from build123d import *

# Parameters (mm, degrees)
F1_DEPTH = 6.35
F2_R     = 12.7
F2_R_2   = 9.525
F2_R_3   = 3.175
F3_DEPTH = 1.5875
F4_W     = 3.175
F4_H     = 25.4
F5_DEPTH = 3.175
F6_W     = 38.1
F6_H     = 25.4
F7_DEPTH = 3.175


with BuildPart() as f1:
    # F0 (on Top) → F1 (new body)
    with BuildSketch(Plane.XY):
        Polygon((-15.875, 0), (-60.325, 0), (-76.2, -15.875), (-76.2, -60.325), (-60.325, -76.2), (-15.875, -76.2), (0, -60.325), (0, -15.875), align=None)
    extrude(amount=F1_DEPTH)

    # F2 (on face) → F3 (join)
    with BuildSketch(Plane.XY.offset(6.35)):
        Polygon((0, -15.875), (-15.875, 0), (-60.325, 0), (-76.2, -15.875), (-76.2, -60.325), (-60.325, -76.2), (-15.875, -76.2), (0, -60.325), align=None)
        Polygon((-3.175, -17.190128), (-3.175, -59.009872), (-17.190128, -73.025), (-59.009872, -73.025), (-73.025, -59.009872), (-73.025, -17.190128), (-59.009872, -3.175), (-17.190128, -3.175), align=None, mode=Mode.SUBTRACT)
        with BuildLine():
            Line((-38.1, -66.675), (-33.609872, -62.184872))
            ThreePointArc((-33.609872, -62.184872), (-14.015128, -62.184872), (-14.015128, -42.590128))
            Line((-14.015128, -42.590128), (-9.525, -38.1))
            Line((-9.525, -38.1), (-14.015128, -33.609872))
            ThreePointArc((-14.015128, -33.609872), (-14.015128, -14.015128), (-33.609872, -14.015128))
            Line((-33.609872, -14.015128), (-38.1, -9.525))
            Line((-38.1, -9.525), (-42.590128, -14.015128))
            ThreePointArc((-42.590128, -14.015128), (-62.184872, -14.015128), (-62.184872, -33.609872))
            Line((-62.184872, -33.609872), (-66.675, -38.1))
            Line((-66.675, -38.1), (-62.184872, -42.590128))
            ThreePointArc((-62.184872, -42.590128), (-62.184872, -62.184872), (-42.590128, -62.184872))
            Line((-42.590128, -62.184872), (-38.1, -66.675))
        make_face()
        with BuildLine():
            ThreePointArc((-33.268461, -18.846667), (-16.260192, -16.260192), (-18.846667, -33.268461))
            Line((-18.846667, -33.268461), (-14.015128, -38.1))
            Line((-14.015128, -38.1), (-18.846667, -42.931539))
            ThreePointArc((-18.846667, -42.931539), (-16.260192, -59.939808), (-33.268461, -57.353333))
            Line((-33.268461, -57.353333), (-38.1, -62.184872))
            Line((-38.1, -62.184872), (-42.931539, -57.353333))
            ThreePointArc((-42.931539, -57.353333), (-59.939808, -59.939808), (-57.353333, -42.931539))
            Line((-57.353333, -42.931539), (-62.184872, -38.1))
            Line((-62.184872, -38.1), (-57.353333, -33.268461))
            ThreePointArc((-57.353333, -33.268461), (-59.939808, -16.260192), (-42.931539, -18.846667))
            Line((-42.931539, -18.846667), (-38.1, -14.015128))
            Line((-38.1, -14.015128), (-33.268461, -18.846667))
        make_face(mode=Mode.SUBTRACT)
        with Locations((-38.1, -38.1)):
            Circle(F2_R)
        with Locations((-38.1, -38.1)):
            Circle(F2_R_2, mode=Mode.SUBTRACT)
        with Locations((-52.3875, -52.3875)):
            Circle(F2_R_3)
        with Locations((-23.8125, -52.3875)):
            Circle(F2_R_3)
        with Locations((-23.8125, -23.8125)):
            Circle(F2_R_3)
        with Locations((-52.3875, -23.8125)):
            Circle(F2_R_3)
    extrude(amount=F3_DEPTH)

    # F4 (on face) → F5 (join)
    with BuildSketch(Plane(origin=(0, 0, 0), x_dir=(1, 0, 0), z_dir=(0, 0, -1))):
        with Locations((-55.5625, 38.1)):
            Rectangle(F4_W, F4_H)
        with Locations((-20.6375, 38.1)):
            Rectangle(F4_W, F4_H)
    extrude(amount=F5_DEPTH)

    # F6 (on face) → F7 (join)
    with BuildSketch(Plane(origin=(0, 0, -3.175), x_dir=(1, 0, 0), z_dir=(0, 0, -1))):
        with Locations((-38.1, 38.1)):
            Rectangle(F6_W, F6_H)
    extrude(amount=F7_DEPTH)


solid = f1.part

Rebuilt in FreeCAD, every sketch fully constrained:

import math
import FreeCAD as App
import Part
import Sketcher
Q = App.Units.Quantity

doc = App.newDocument("Part")
body = doc.addObject("PartDesign::Body", "Body")

sketch1 = body.newObject("Sketcher::SketchObject", "Sketch")
sketch1.AttachmentSupport = (doc.getObject("XY_Plane"), [""])
sketch1.MapMode = "FlatFace"
sketch1.addGeometry([
    Part.LineSegment(App.Vector(-16, 0, 0), App.Vector(-60, 0, 0)),
    Part.LineSegment(App.Vector(-60, 0, 0), App.Vector(-76, -16, 0)),
    Part.LineSegment(App.Vector(-76, -16, 0), App.Vector(-76, -60, 0)),
    Part.LineSegment(App.Vector(-76, -60, 0), App.Vector(-60, -76, 0)),
    Part.LineSegment(App.Vector(-60, -76, 0), App.Vector(-16, -76, 0)),
    Part.LineSegment(App.Vector(-16, -76, 0), App.Vector(0, -60, 0)),
    Part.LineSegment(App.Vector(0, -60, 0), App.Vector(0, -16, 0)),
    Part.LineSegment(App.Vector(0, -16, 0), App.Vector(-16, 0, 0)),
], False)
sketch1.addConstraint([
    Sketcher.Constraint("Coincident", 0, 2, 1, 1),
    Sketcher.Constraint("Coincident", 1, 2, 2, 1),
    Sketcher.Constraint("Coincident", 2, 2, 3, 1),
    Sketcher.Constraint("Coincident", 3, 2, 4, 1),
    Sketcher.Constraint("Coincident", 4, 2, 5, 1),
    Sketcher.Constraint("Coincident", 5, 2, 6, 1),
    Sketcher.Constraint("Coincident", 6, 2, 7, 1),
    Sketcher.Constraint("Coincident", 7, 2, 0, 1),
    Sketcher.Constraint("Horizontal", 0),
    Sketcher.Constraint("Vertical", 2),
    Sketcher.Constraint("Horizontal", 4),
    Sketcher.Constraint("Vertical", 6),
    Sketcher.Constraint("PointOnObject", 0, 2, -1),
    Sketcher.Constraint("PointOnObject", 5, 2, -2),
    Sketcher.Constraint("Perpendicular", 1, 3),
    Sketcher.Constraint("Perpendicular", 3, 5),
    Sketcher.Constraint("Perpendicular", 5, 7),
    Sketcher.Constraint("Horizontal", 2, 2, 5, 2),
    Sketcher.Constraint("Horizontal", 1, 2, 6, 2),
    Sketcher.Constraint("Vertical", 0, 2, 3, 2),
    Sketcher.Constraint("Vertical", 4, 2, 7, 2),
    Sketcher.Constraint("Equal", 4, 2),
    Sketcher.Constraint("DistanceX", 1, 2, -1, 1, Q("3 in")),
    Sketcher.Constraint("DistanceX", 0, 2, 0, 1, Q("1.75 in")),
])
pad1 = body.newObject("PartDesign::Pad", "Pad")
pad1.Profile = sketch1
pad1.Length = Q("0.25 in")

sketch2 = body.newObject("Sketcher::SketchObject", "Sketch001")
sketch2.AttachmentSupport = (doc.getObject("XY_Plane"), [""])
sketch2.MapMode = "FlatFace"
sketch2.AttachmentOffset = App.Placement(App.Vector(0, 0, 0.25 * 25.4), App.Rotation())
sketch2.addGeometry([
    Part.LineSegment(App.Vector(0, -15.9, 0), App.Vector(-15.9, 0, 0)),
    Part.LineSegment(App.Vector(-15.9, 0, 0), App.Vector(-60.3, 0, 0)),
    Part.LineSegment(App.Vector(-60.3, 0, 0), App.Vector(-76.2, -15.9, 0)),
    Part.LineSegment(App.Vector(-76.2, -15.9, 0), App.Vector(-76.2, -60.3, 0)),
    Part.LineSegment(App.Vector(-76.2, -60.3, 0), App.Vector(-60.3, -76.2, 0)),
    Part.LineSegment(App.Vector(-60.3, -76.2, 0), App.Vector(-15.9, -76.2, 0)),
    Part.LineSegment(App.Vector(-15.9, -76.2, 0), App.Vector(0, -60.3, 0)),
    Part.LineSegment(App.Vector(0, -60.3, 0), App.Vector(0, -15.9, 0)),
    Part.LineSegment(App.Vector(-17.2, -3.2, 0), App.Vector(-3.2, -17.2, 0)),
    Part.LineSegment(App.Vector(-3.2, -17.2, 0), App.Vector(-3.2, -59, 0)),
    Part.LineSegment(App.Vector(-3.2, -59, 0), App.Vector(-17.2, -73, 0)),
    Part.LineSegment(App.Vector(-17.2, -73, 0), App.Vector(-59, -73, 0)),
    Part.LineSegment(App.Vector(-59, -73, 0), App.Vector(-73, -59, 0)),
    Part.LineSegment(App.Vector(-73, -59, 0), App.Vector(-73, -17.2, 0)),
    Part.LineSegment(App.Vector(-73, -17.2, 0), App.Vector(-59, -3.2, 0)),
    Part.LineSegment(App.Vector(-59, -3.2, 0), App.Vector(-17.2, -3.2, 0)),
    Part.LineSegment(App.Vector(-38.1, -66.7, 0), App.Vector(-33.6, -62.2, 0)),
    Part.ArcOfCircle(Part.Circle(App.Vector(-23.8, -52.4, 0), App.Vector(0, 0, 1), 13.9), math.radians(-135), math.radians(45)),
    Part.LineSegment(App.Vector(-14, -42.6, 0), App.Vector(-9.5, -38.1, 0)),
    Part.LineSegment(App.Vector(-9.5, -38.1, 0), App.Vector(-14, -33.6, 0)),
    Part.ArcOfCircle(Part.Circle(App.Vector(-23.8, -23.8, 0), App.Vector(0, 0, 1), 13.9), math.radians(-45), math.radians(135)),
    Part.LineSegment(App.Vector(-33.6, -14, 0), App.Vector(-38.1, -9.5, 0)),
    Part.LineSegment(App.Vector(-38.1, -9.5, 0), App.Vector(-42.6, -14, 0)),
    Part.ArcOfCircle(Part.Circle(App.Vector(-52.4, -23.8, 0), App.Vector(0, 0, 1), 13.9), math.radians(45), math.radians(225)),
    Part.LineSegment(App.Vector(-62.2, -33.6, 0), App.Vector(-66.7, -38.1, 0)),
    Part.LineSegment(App.Vector(-66.7, -38.1, 0), App.Vector(-62.2, -42.6, 0)),
    Part.ArcOfCircle(Part.Circle(App.Vector(-52.4, -52.4, 0), App.Vector(0, 0, 1), 13.9), math.radians(135), math.radians(315)),
    Part.LineSegment(App.Vector(-42.6, -62.2, 0), App.Vector(-38.1, -66.7, 0)),
    Part.LineSegment(App.Vector(-38.1, -14, 0), App.Vector(-33.3, -18.8, 0)),
    Part.ArcOfCircle(Part.Circle(App.Vector(-23.8, -23.8, 0), App.Vector(0, 0, 1), 10.7), math.radians(-62), math.radians(152)),
    Part.LineSegment(App.Vector(-18.8, -33.3, 0), App.Vector(-14, -38.1, 0)),
    Part.LineSegment(App.Vector(-14, -38.1, 0), App.Vector(-18.8, -42.9, 0)),
    Part.ArcOfCircle(Part.Circle(App.Vector(-23.8, -52.4, 0), App.Vector(0, 0, 1), 10.7), math.radians(-152), math.radians(62)),
    Part.LineSegment(App.Vector(-33.3, -57.4, 0), App.Vector(-38.1, -62.2, 0)),
    Part.LineSegment(App.Vector(-38.1, -62.2, 0), App.Vector(-42.9, -57.4, 0)),
    Part.ArcOfCircle(Part.Circle(App.Vector(-52.4, -52.4, 0), App.Vector(0, 0, 1), 10.7), math.radians(118), math.radians(332)),
    Part.LineSegment(App.Vector(-57.4, -42.9, 0), App.Vector(-62.2, -38.1, 0)),
    Part.LineSegment(App.Vector(-62.2, -38.1, 0), App.Vector(-57.4, -33.3, 0)),
    Part.ArcOfCircle(Part.Circle(App.Vector(-52.4, -23.8, 0), App.Vector(0, 0, 1), 10.7), math.radians(28), math.radians(242)),
    Part.LineSegment(App.Vector(-42.9, -18.8, 0), App.Vector(-38.1, -14, 0)),
    Part.Circle(App.Vector(-38.1, -38.1, 0), App.Vector(0, 0, 1), 12.7),
    Part.Circle(App.Vector(-38.1, -38.1, 0), App.Vector(0, 0, 1), 9.5),
    Part.Circle(App.Vector(-52.4, -52.4, 0), App.Vector(0, 0, 1), 3.2),
    Part.Circle(App.Vector(-23.8, -52.4, 0), App.Vector(0, 0, 1), 3.2),
    Part.Circle(App.Vector(-23.8, -23.8, 0), App.Vector(0, 0, 1), 3.2),
    Part.Circle(App.Vector(-52.4, -23.8, 0), App.Vector(0, 0, 1), 3.2),
], False)
sketch2.addConstraint([
    Sketcher.Constraint("Coincident", 0, 2, 1, 1),
    Sketcher.Constraint("Coincident", 1, 2, 2, 1),
    Sketcher.Constraint("Coincident", 2, 2, 3, 1),
    Sketcher.Constraint("Coincident", 3, 2, 4, 1),
    Sketcher.Constraint("Coincident", 4, 2, 5, 1),
    Sketcher.Constraint("Coincident", 5, 2, 6, 1),
    Sketcher.Constraint("Coincident", 6, 2, 7, 1),
    Sketcher.Constraint("Coincident", 7, 2, 0, 1),
    Sketcher.Constraint("Coincident", 8, 2, 9, 1),
    Sketcher.Constraint("Coincident", 9, 2, 10, 1),
    Sketcher.Constraint("Coincident", 10, 2, 11, 1),
    Sketcher.Constraint("Coincident", 11, 2, 12, 1),
    Sketcher.Constraint("Coincident", 12, 2, 13, 1),
    Sketcher.Constraint("Coincident", 13, 2, 14, 1),
    Sketcher.Constraint("Coincident", 14, 2, 15, 1),
    Sketcher.Constraint("Coincident", 15, 2, 8, 1),
    Sketcher.Constraint("Coincident", 16, 2, 17, 1),
    Sketcher.Constraint("Coincident", 17, 2, 18, 1),
    Sketcher.Constraint("Coincident", 18, 2, 19, 1),
    Sketcher.Constraint("Coincident", 19, 2, 20, 1),
    Sketcher.Constraint("Coincident", 20, 2, 21, 1),
    Sketcher.Constraint("Coincident", 21, 2, 22, 1),
    Sketcher.Constraint("Coincident", 22, 2, 23, 1),
    Sketcher.Constraint("Coincident", 23, 2, 24, 1),
    Sketcher.Constraint("Coincident", 24, 2, 25, 1),
    Sketcher.Constraint("Coincident", 25, 2, 26, 1),
    Sketcher.Constraint("Coincident", 26, 2, 27, 1),
    Sketcher.Constraint("Coincident", 27, 2, 16, 1),
    Sketcher.Constraint("Coincident", 28, 2, 29, 2),
    Sketcher.Constraint("Coincident", 29, 1, 30, 1),
    Sketcher.Constraint("Coincident", 30, 2, 31, 1),
    Sketcher.Constraint("Coincident", 31, 2, 32, 2),
    Sketcher.Constraint("Coincident", 32, 1, 33, 1),
    Sketcher.Constraint("Coincident", 33, 2, 34, 1),
    Sketcher.Constraint("Coincident", 34, 2, 35, 2),
    Sketcher.Constraint("Coincident", 35, 1, 36, 1),
    Sketcher.Constraint("Coincident", 36, 2, 37, 1),
    Sketcher.Constraint("Coincident", 37, 2, 38, 2),
    Sketcher.Constraint("Coincident", 38, 1, 39, 1),
    Sketcher.Constraint("Coincident", 39, 2, 28, 1),
    Sketcher.Constraint("Horizontal", 1),
    Sketcher.Constraint("Vertical", 3),
    Sketcher.Constraint("Horizontal", 5),
    Sketcher.Constraint("Vertical", 7),
    Sketcher.Constraint("Vertical", 9),
    Sketcher.Constraint("Horizontal", 11),
    Sketcher.Constraint("Vertical", 13),
    Sketcher.Constraint("Horizontal", 15),
    Sketcher.Constraint("Coincident", 29, 3, 20, 3),
    Sketcher.Constraint("Coincident", 32, 3, 17, 3),
    Sketcher.Constraint("Coincident", 35, 3, 26, 3),
    Sketcher.Constraint("Coincident", 38, 3, 23, 3),
    Sketcher.Constraint("Coincident", 41, 3, 40, 3),
    Sketcher.Constraint("Coincident", 42, 3, 26, 3),
    Sketcher.Constraint("Coincident", 43, 3, 17, 3),
    Sketcher.Constraint("Coincident", 44, 3, 20, 3),
    Sketcher.Constraint("Coincident", 45, 3, 23, 3),
    Sketcher.Constraint("Equal", 17, 20),
    Sketcher.Constraint("Equal", 20, 23),
    Sketcher.Constraint("Equal", 23, 26),
    Sketcher.Constraint("Equal", 29, 32),
    Sketcher.Constraint("Equal", 32, 35),
    Sketcher.Constraint("Equal", 35, 38),
    Sketcher.Constraint("Equal", 42, 43),
    Sketcher.Constraint("Equal", 43, 44),
    Sketcher.Constraint("Equal", 44, 45),
    Sketcher.Constraint("PointOnObject", 0, 2, -1),
    Sketcher.Constraint("PointOnObject", 6, 2, -2),
    Sketcher.Constraint("Perpendicular", 0, 2),
    Sketcher.Constraint("Perpendicular", 2, 4),
    Sketcher.Constraint("Perpendicular", 4, 6),
    Sketcher.Constraint("Perpendicular", 6, 8),
    Sketcher.Constraint("Perpendicular", 8, 10),
    Sketcher.Constraint("Perpendicular", 10, 12),
    Sketcher.Constraint("Perpendicular", 12, 14),
    Sketcher.Constraint("Parallel", 14, 16),
    Sketcher.Constraint("Parallel", 16, 18),
    Sketcher.Constraint("Perpendicular", 18, 19),
    Sketcher.Constraint("Parallel", 19, 21),
    Sketcher.Constraint("Perpendicular", 21, 22),
    Sketcher.Constraint("Parallel", 22, 24),
    Sketcher.Constraint("Perpendicular", 24, 25),
    Sketcher.Constraint("Parallel", 25, 27),
    Sketcher.Constraint("Parallel", 27, 28),
    Sketcher.Constraint("Parallel", 28, 30),
    Sketcher.Constraint("Perpendicular", 30, 31),
    Sketcher.Constraint("Parallel", 31, 33),
    Sketcher.Constraint("Perpendicular", 33, 34),
    Sketcher.Constraint("Parallel", 34, 36),
    Sketcher.Constraint("Perpendicular", 36, 37),
    Sketcher.Constraint("Parallel", 37, 39),
    Sketcher.Constraint("Horizontal", 20, 3, 23, 3),
    Sketcher.Constraint("Horizontal", 17, 3, 26, 3),
    Sketcher.Constraint("Horizontal", 3, 2, 6, 2),
    Sketcher.Constraint("Horizontal", 2, 2, 7, 2),
    Sketcher.Constraint("Horizontal", 9, 2, 12, 2),
    Sketcher.Constraint("Horizontal", 8, 2, 13, 2),
    Sketcher.Constraint("Horizontal", 41, 3, 18, 2),
    Sketcher.Constraint("Horizontal", 20, 2, 22, 2),
    Sketcher.Constraint("Horizontal", 19, 2, 23, 2),
    Sketcher.Constraint("Horizontal", 18, 2, 24, 2),
    Sketcher.Constraint("Horizontal", 17, 2, 25, 2),
    Sketcher.Constraint("Horizontal", 16, 2, 26, 2),
    Sketcher.Constraint("Horizontal", 24, 2, 30, 2),
    Sketcher.Constraint("Horizontal", 26, 2, 33, 2),
    Sketcher.Constraint("Horizontal", 32, 1, 34, 2),
    Sketcher.Constraint("Horizontal", 31, 2, 35, 1),
    Sketcher.Constraint("Horizontal", 30, 2, 36, 2),
    Sketcher.Constraint("Horizontal", 28, 2, 38, 1),
    Sketcher.Constraint("Horizontal", 22, 2, 39, 2),
    Sketcher.Constraint("Vertical", 17, 3, 20, 3),
    Sketcher.Constraint("Vertical", 23, 3, 26, 3),
    Sketcher.Constraint("Vertical", 1, 2, 4, 2),
    Sketcher.Constraint("Vertical", 11, 2, 14, 2),
    Sketcher.Constraint("Vertical", 17, 2, 19, 2),
    Sketcher.Constraint("Vertical", 16, 2, 20, 2),
    Sketcher.Constraint("Vertical", 41, 3, 21, 2),
    Sketcher.Constraint("Vertical", 19, 2, 30, 2),
    Sketcher.Constraint("Equal", 5, 3),
    Sketcher.Constraint("Equal", 15, 9),
    Sketcher.Constraint("Equal", 16, 18),
    Sketcher.Constraint("Equal", 28, 30),
    Sketcher.Constraint("Diameter", 40, Q("1 in")),
    Sketcher.Constraint("Diameter", 41, Q("0.75 in")),
    Sketcher.Constraint("Diameter", 42, Q("0.25 in")),
    Sketcher.Constraint("DistanceX", 2, 2, -1, 1, Q("3 in")),
    Sketcher.Constraint("DistanceX", 1, 2, 1, 1, Q("1.75 in")),
    Sketcher.Constraint("DistanceX", 40, 3, -1, 1, Q("1.5 in")),
    Sketcher.Constraint("DistanceY", 40, 3, -1, 1, Q("1.5 in")),
    Sketcher.Constraint("DistanceX", 0, 2, 8, 2, Q("0.5 in")),
    Sketcher.Constraint("DistanceY", 10, 2, 6, 2, Q("0.5 in")),
    Sketcher.Constraint("DistanceX", 12, 2, 4, 2, Q("0.5 in")),
    Sketcher.Constraint("Distance", 16, Q("0.25 in")),
    Sketcher.Constraint("DistanceX", 17, 3, -1, 1, Q("0.9375 in")),
    Sketcher.Constraint("DistanceX", 18, 2, -1, 1, Q("0.375 in")),
    Sketcher.Constraint("Radius", 29, 10.680576),
    Sketcher.Constraint("DistanceX", 11, 2, 11, 1, 41.819744),
])
pad2 = body.newObject("PartDesign::Pad", "Pad001")
pad2.Profile = sketch2
pad2.Length = Q("0.0625 in")

sketch3 = body.newObject("Sketcher::SketchObject", "Sketch002")
sketch3.AttachmentSupport = (doc.getObject("XY_Plane"), [""])
sketch3.MapMode = "FlatFace"
sketch3.addGeometry([
    Part.LineSegment(App.Vector(-57.1, -50.8, 0), App.Vector(-57.1, -25.4, 0)),
    Part.LineSegment(App.Vector(-57.1, -25.4, 0), App.Vector(-54, -25.4, 0)),
    Part.LineSegment(App.Vector(-54, -25.4, 0), App.Vector(-54, -50.8, 0)),
    Part.LineSegment(App.Vector(-54, -50.8, 0), App.Vector(-57.1, -50.8, 0)),
    Part.LineSegment(App.Vector(-22.2, -50.8, 0), App.Vector(-22.2, -25.4, 0)),
    Part.LineSegment(App.Vector(-22.2, -25.4, 0), App.Vector(-19.1, -25.4, 0)),
    Part.LineSegment(App.Vector(-19.1, -25.4, 0), App.Vector(-19.1, -50.8, 0)),
    Part.LineSegment(App.Vector(-19.1, -50.8, 0), App.Vector(-22.2, -50.8, 0)),
], False)
sketch3.addConstraint([
    Sketcher.Constraint("Coincident", 0, 2, 1, 1),
    Sketcher.Constraint("Coincident", 1, 2, 2, 1),
    Sketcher.Constraint("Coincident", 2, 2, 3, 1),
    Sketcher.Constraint("Coincident", 3, 2, 0, 1),
    Sketcher.Constraint("Coincident", 4, 2, 5, 1),
    Sketcher.Constraint("Coincident", 5, 2, 6, 1),
    Sketcher.Constraint("Coincident", 6, 2, 7, 1),
    Sketcher.Constraint("Coincident", 7, 2, 4, 1),
    Sketcher.Constraint("Vertical", 0),
    Sketcher.Constraint("Horizontal", 1),
    Sketcher.Constraint("Vertical", 2),
    Sketcher.Constraint("Horizontal", 3),
    Sketcher.Constraint("Vertical", 4),
    Sketcher.Constraint("Horizontal", 5),
    Sketcher.Constraint("Vertical", 6),
    Sketcher.Constraint("Horizontal", 7),
    Sketcher.Constraint("Horizontal", 1, 2, 4, 2),
    Sketcher.Constraint("Horizontal", 3, 2, 6, 2),
    Sketcher.Constraint("Equal", 3, 5),
    Sketcher.Constraint("DistanceY", 0, 1, 0, 2, Q("1 in")),
    Sketcher.Constraint("DistanceY", 0, 2, -1, 1, Q("1 in")),
    Sketcher.Constraint("DistanceX", 0, 2, 5, 2, Q("1.5 in")),
    Sketcher.Constraint("DistanceX", 1, 1, 1, 2, Q("0.125 in")),
    Sketcher.Constraint("DistanceX", 0, 2, -1, 1, Q("2.25 in")),
])
pad3 = body.newObject("PartDesign::Pad", "Pad002")
pad3.Profile = sketch3
pad3.Length = Q("0.125 in")
pad3.Reversed = True

sketch4 = body.newObject("Sketcher::SketchObject", "Sketch003")
sketch4.AttachmentSupport = (doc.getObject("XY_Plane"), [""])
sketch4.MapMode = "FlatFace"
sketch4.AttachmentOffset = App.Placement(App.Vector(0, 0, -0.125 * 25.4), App.Rotation())
sketch4.addGeometry([
    Part.LineSegment(App.Vector(-57, -51, 0), App.Vector(-57, -25, 0)),
    Part.LineSegment(App.Vector(-57, -25, 0), App.Vector(-19, -25, 0)),
    Part.LineSegment(App.Vector(-19, -25, 0), App.Vector(-19, -51, 0)),
    Part.LineSegment(App.Vector(-19, -51, 0), App.Vector(-57, -51, 0)),
], False)
sketch4.addConstraint([
    Sketcher.Constraint("Coincident", 0, 2, 1, 1),
    Sketcher.Constraint("Coincident", 1, 2, 2, 1),
    Sketcher.Constraint("Coincident", 2, 2, 3, 1),
    Sketcher.Constraint("Coincident", 3, 2, 0, 1),
    Sketcher.Constraint("Vertical", 0),
    Sketcher.Constraint("Horizontal", 1),
    Sketcher.Constraint("Vertical", 2),
    Sketcher.Constraint("Horizontal", 3),
    Sketcher.Constraint("DistanceY", 0, 1, 0, 2, Q("1 in")),
    Sketcher.Constraint("DistanceX", 1, 1, 1, 2, Q("1.5 in")),
    Sketcher.Constraint("DistanceY", 0, 2, -1, 1, Q("1 in")),
    Sketcher.Constraint("DistanceX", 0, 2, -1, 1, Q("2.25 in")),
])
pad4 = body.newObject("PartDesign::Pad", "Pad003")
pad4.Profile = sketch4
pad4.Length = Q("0.125 in")
pad4.Reversed = True

doc.recompute()
